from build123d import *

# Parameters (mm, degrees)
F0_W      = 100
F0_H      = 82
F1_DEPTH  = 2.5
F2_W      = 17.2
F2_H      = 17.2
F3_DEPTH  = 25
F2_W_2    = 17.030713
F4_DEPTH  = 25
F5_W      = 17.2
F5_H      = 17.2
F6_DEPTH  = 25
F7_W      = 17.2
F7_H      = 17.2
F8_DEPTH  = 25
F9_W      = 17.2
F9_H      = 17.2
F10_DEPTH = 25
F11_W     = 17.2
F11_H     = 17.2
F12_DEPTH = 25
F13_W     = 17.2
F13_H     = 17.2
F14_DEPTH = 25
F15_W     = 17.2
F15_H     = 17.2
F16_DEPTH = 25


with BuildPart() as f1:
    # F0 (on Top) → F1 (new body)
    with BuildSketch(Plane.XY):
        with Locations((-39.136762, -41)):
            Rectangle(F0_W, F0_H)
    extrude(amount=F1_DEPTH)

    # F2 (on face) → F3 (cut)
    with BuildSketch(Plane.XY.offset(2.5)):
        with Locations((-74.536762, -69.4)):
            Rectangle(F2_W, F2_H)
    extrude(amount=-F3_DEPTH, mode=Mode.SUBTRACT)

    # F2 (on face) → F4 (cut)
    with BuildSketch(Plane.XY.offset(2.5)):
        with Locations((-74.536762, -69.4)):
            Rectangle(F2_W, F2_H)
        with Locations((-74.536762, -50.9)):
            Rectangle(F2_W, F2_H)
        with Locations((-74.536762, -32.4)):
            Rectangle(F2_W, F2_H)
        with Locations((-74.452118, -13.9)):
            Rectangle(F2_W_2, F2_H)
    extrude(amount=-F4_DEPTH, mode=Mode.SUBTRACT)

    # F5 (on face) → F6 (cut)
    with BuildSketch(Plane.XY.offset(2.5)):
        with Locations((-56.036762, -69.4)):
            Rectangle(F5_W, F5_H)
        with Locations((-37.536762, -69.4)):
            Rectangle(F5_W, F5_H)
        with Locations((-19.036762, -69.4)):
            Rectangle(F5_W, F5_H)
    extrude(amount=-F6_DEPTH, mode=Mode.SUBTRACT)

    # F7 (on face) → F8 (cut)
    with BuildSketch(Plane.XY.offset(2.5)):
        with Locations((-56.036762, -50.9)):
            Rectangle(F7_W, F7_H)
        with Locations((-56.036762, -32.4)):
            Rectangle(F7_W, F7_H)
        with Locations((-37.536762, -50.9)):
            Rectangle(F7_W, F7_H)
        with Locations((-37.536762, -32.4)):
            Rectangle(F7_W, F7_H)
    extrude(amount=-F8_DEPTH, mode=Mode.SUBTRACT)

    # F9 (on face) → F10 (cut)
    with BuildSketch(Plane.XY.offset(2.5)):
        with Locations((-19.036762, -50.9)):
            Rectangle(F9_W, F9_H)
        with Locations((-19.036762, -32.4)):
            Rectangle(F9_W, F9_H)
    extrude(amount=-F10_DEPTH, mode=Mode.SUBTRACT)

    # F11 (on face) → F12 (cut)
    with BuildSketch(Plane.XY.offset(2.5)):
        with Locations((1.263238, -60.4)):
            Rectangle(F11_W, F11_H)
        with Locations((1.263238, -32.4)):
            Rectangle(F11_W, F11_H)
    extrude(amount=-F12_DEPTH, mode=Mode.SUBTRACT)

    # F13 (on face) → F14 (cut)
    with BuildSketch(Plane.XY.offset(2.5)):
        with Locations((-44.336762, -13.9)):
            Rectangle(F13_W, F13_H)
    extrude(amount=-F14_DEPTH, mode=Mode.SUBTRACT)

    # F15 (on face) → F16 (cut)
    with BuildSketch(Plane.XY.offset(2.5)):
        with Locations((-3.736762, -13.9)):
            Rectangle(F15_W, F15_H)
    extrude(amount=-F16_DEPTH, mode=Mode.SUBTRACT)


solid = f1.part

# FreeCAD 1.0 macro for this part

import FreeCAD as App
import Part
import Sketcher
from FreeCAD import Vector


def add_polygon(sketch, points):
    """Adds a closed chain of lines whose ends are joined by coincident constraints."""
    first, n = sketch.GeometryCount, len(points)
    for a, b in zip(points, points[1:] + points[:1]):
        sketch.addGeometry(Part.LineSegment(App.Vector(*a, 0), App.Vector(*b, 0)), False)
    for i in range(n):
        sketch.addConstraint(Sketcher.Constraint("Coincident", first + i, 2, first + (i + 1) % n, 1))

doc = App.newDocument("Part")
body = doc.addObject("PartDesign::Body", "Body")

# Sketch on XY plane
sketch1 = body.newObject("Sketcher::SketchObject", "Sketch")
sketch1.AttachmentSupport = (doc.getObject("XY_Plane"), [""])
sketch1.MapMode = "FlatFace"
add_polygon(sketch1, [(-89, 0), (-89, -82), (11, -82), (11, 0)])  # lines 0-3
sketch1.addConstraint([
    Sketcher.Constraint("Vertical", 0),
    Sketcher.Constraint("Horizontal", 1),
    Sketcher.Constraint("Vertical", 2),
    Sketcher.Constraint("Horizontal", 3),
    Sketcher.Constraint("PointOnObject", 2, 2, -1),
    Sketcher.Constraint("DistanceX", 1, 1, 1, 2, 100.0),
    Sketcher.Constraint("DistanceY", 0, 2, 0, 1, 82.0),
    Sketcher.Constraint("DistanceX", -1, 1, 1, 2, 10.863238),
])
pad1 = body.newObject("PartDesign::Pad", "Pad")
pad1.Profile = sketch1
pad1.Length = 2.5

# Sketch on XY plane
sketch2 = body.newObject("Sketcher::SketchObject", "Sketch001")
sketch2.AttachmentSupport = (doc.getObject("XY_Plane"), [""])
sketch2.MapMode = "FlatFace"
sketch2.AttachmentOffset = App.Placement(Vector(0, 0, 2.5), App.Rotation())
add_polygon(sketch2, [(-83, -61), (-83, -78), (-66, -78), (-66, -61)])  # lines 0-3
sketch2.addConstraint([
    Sketcher.Constraint("Vertical", 0),
    Sketcher.Constraint("Horizontal", 1),
    Sketcher.Constraint("Vertical", 2),
    Sketcher.Constraint("Horizontal", 3),
    Sketcher.Constraint("Equal", 3, 0),
    Sketcher.Constraint("DistanceX", 1, 1, 1, 2, 17.2),
    Sketcher.Constraint("DistanceY", 0, 2, -1, 1, 78.0),
    Sketcher.Constraint("DistanceX", 1, 2, -1, 1, 65.936762),
])
pocket1 = body.newObject("PartDesign::Pocket", "Pocket")
pocket1.Profile = sketch2
pocket1.Length = 25

# Sketch on XY plane
sketch3 = body.newObject("Sketcher::SketchObject", "Sketch002")
sketch3.AttachmentSupport = (doc.getObject("XY_Plane"), [""])
sketch3.MapMode = "FlatFace"
sketch3.AttachmentOffset = App.Placement(Vector(0, 0, 2.5), App.Rotation())
add_polygon(sketch3, [(-83, -61), (-83, -78), (-66, -78), (-66, -61)])  # lines 0-3
add_polygon(sketch3, [(-83, -42), (-83, -60), (-66, -60), (-66, -42)])  # lines 4-7
add_polygon(sketch3, [(-83, -24), (-83, -41), (-66, -41), (-66, -24)])  # lines 8-11
add_polygon(sketch3, [(-83, -5), (-83, -22), (-66, -22), (-66, -5)])  # lines 12-15
sketch3.addConstraint([
    Sketcher.Constraint("Vertical", 0),
    Sketcher.Constraint("Horizontal", 1),
    Sketcher.Constraint("Vertical", 2),
    Sketcher.Constraint("Horizontal", 3),
    Sketcher.Constraint("Vertical", 4),
    Sketcher.Constraint("Horizontal", 5),
    Sketcher.Constraint("Vertical", 6),
    Sketcher.Constraint("Horizontal", 7),
    Sketcher.Constraint("Vertical", 8),
    Sketcher.Constraint("Horizontal", 9),
    Sketcher.Constraint("Vertical", 10),
    Sketcher.Constraint("Horizontal", 11),
    Sketcher.Constraint("Vertical", 12),
    Sketcher.Constraint("Horizontal", 13),
    Sketcher.Constraint("Vertical", 14),
    Sketcher.Constraint("Horizontal", 15),
    Sketcher.Constraint("Vertical", 3, 2, 4, 2),
    Sketcher.Constraint("Vertical", 2, 2, 5, 2),
    Sketcher.Constraint("Vertical", 7, 2, 8, 2),
    Sketcher.Constraint("Vertical", 6, 2, 9, 2),
    Sketcher.Constraint("Vertical", 10, 2, 13, 2),
    Sketcher.Constraint("Equal", 11, 0),
    Sketcher.Constraint("Equal", 2, 4),
    Sketcher.Constraint("Equal", 6, 8),
    Sketcher.Constraint("Equal", 10, 12),
    Sketcher.Constraint("DistanceX", 1, 1, 1, 2, 17.2),
    Sketcher.Constraint("DistanceY", 0, 2, -1, 1, 78.0),
    Sketcher.Constraint("DistanceY", 8, 2, -1, 1, 41.0),
    Sketcher.Constraint("DistanceY", 4, 2, -1, 1, 59.5),
    Sketcher.Constraint("DistanceY", 12, 2, -1, 1, 22.5),
    Sketcher.Constraint("DistanceX", 13, 1, 13, 2, 17.030713),
    Sketcher.Constraint("DistanceX", 1, 2, -1, 1, 65.936762),
])
pocket2 = body.newObject("PartDesign::Pocket", "Pocket001")
pocket2.Profile = sketch3
pocket2.Length = 25

# Sketch on XY plane
sketch4 = body.newObject("Sketcher::SketchObject", "Sketch003")
sketch4.AttachmentSupport = (doc.getObject("XY_Plane"), [""])
sketch4.MapMode = "FlatFace"
sketch4.AttachmentOffset = App.Placement(Vector(0, 0, 2.5), App.Rotation())
add_polygon(sketch4, [(-65, -61), (-65, -78), (-47, -78), (-47, -61)])  # lines 0-3
add_polygon(sketch4, [(-46, -61), (-46, -78), (-29, -78), (-29, -61)])  # lines 4-7
add_polygon(sketch4, [(-28, -61), (-28, -78), (-10, -78), (-10, -61)])  # lines 8-11
sketch4.addConstraint([
    Sketcher.Constraint("Vertical", 0),
    Sketcher.Constraint("Horizontal", 1),
    Sketcher.Constraint("Vertical", 2),
    Sketcher.Constraint("Horizontal", 3),
    Sketcher.Constraint("Vertical", 4),
    Sketcher.Constraint("Horizontal", 5),
    Sketcher.Constraint("Vertical", 6),
    Sketcher.Constraint("Horizontal", 7),
    Sketcher.Constraint("Vertical", 8),
    Sketcher.Constraint("Horizontal", 9),
    Sketcher.Constraint("Vertical", 10),
    Sketcher.Constraint("Horizontal", 11),
    Sketcher.Constraint("Horizontal", 1, 2, 4, 2),
    Sketcher.Constraint("Horizontal", 3, 2, 6, 2),
    Sketcher.Constraint("Horizontal", 5, 2, 8, 2),
    Sketcher.Constraint("Horizontal", 7, 2, 10, 2),
    Sketcher.Constraint("Equal", 3, 5),
    Sketcher.Constraint("Equal", 7, 9),
    Sketcher.Constraint("Equal", 11, 0),
    Sketcher.Constraint("DistanceX", 1, 1, 1, 2, 17.2),
    Sketcher.Constraint("DistanceY", 0, 2, -1, 1, 78.0),
    Sketcher.Constraint("DistanceX", 1, 2, 9, 2, 37.0),
    Sketcher.Constraint("DistanceX", 1, 2, 4, 2, 1.3),
    Sketcher.Constraint("DistanceX", 4, 2, -1, 1, 46.136762),
])
pocket3 = body.newObject("PartDesign::Pocket", "Pocket002")
pocket3.Profile = sketch4
pocket3.Length = 25

# Sketch on XY plane
sketch5 = body.newObject("Sketcher::SketchObject", "Sketch004")
sketch5.AttachmentSupport = (doc.getObject("XY_Plane"), [""])
sketch5.MapMode = "FlatFace"
sketch5.AttachmentOffset = App.Placement(Vector(0, 0, 2.5), App.Rotation())
add_polygon(sketch5, [(-65, -42), (-65, -60), (-47, -60), (-47, -42)])  # lines 0-3
add_polygon(sketch5, [(-65, -24), (-65, -41), (-47, -41), (-47, -24)])  # lines 4-7
add_polygon(sketch5, [(-46, -42), (-46, -60), (-29, -60), (-29, -42)])  # lines 8-11
add_polygon(sketch5, [(-46, -24), (-46, -41), (-29, -41), (-29, -24)])  # lines 12-15
sketch5.addConstraint([
    Sketcher.Constraint("Vertical", 0),
    Sketcher.Constraint("Horizontal", 1),
    Sketcher.Constraint("Vertical", 2),
    Sketcher.Constraint("Horizontal", 3),
    Sketcher.Constraint("Vertical", 4),
    Sketcher.Constraint("Horizontal", 5),
    Sketcher.Constraint("Vertical", 6),
    Sketcher.Constraint("Horizontal", 7),
    Sketcher.Constraint("Vertical", 8),
    Sketcher.Constraint("Horizontal", 9),
    Sketcher.Constraint("Vertical", 10),
    Sketcher.Constraint("Horizontal", 11),
    Sketcher.Constraint("Vertical", 12),
    Sketcher.Constraint("Horizontal", 13),
    Sketcher.Constraint("Vertical", 14),
    Sketcher.Constraint("Horizontal", 15),
    Sketcher.Constraint("Horizontal", 1, 2, 8, 2),
    Sketcher.Constraint("Horizontal", 3, 2, 10, 2),
    Sketcher.Constraint("Horizontal", 5, 2, 12, 2),
    Sketcher.Constraint("Horizontal", 7, 2, 14, 2),
    Sketcher.Constraint("Vertical", 3, 2, 4, 2),
    Sketcher.Constraint("Vertical", 2, 2, 5, 2),
    Sketcher.Constraint("Vertical", 11, 2, 12, 2),
    Sketcher.Constraint("Vertical", 10, 2, 13, 2),
    Sketcher.Constraint("Equal", 7, 9),
    Sketcher.Constraint("Equal", 15, 0),
    Sketcher.Constraint("Equal", 2, 4),
    Sketcher.Constraint("DistanceX", 1, 1, 1, 2, 17.2),
    Sketcher.Constraint("DistanceY", 4, 2, -1, 1, 41.0),
    Sketcher.Constraint("DistanceY", 0, 2, -1, 1, 59.5),
    Sketcher.Constraint("DistanceX", 1, 2, 8, 2, 1.3),
    Sketcher.Constraint("DistanceX", 8, 2, -1, 1, 46.136762),
])
pocket4 = body.newObject("PartDesign::Pocket", "Pocket003")
pocket4.Profile = sketch5
pocket4.Length = 25

# Sketch on XY plane
sketch6 = body.newObject("Sketcher::SketchObject", "Sketch005")
sketch6.AttachmentSupport = (doc.getObject("XY_Plane"), [""])
sketch6.MapMode = "FlatFace"
sketch6.AttachmentOffset = App.Placement(Vector(0, 0, 2.5), App.Rotation())
add_polygon(sketch6, [(-28, -42), (-28, -60), (-10, -60), (-10, -42)])  # lines 0-3
add_polygon(sketch6, [(-28, -24), (-28, -41), (-10, -41), (-10, -24)])  # lines 4-7
sketch6.addConstraint([
    Sketcher.Constraint("Vertical", 0),
    Sketcher.Constraint("Horizontal", 1),
    Sketcher.Constraint("Vertical", 2),
    Sketcher.Constraint("Horizontal", 3),
    Sketcher.Constraint("Vertical", 4),
    Sketcher.Constraint("Horizontal", 5),
    Sketcher.Constraint("Vertical", 6),
    Sketcher.Constraint("Horizontal", 7),
    Sketcher.Constraint("Vertical", 3, 2, 4, 2),
    Sketcher.Constraint("Vertical", 2, 2, 5, 2),
    Sketcher.Constraint("Equal", 7, 0),
    Sketcher.Constraint("Equal", 2, 4),
    Sketcher.Constraint("DistanceX", 1, 1, 1, 2, 17.2),
    Sketcher.Constraint("DistanceY", 4, 2, -1, 1, 41.0),
    Sketcher.Constraint("DistanceY", 0, 2, -1, 1, 59.5),
    Sketcher.Constraint("DistanceX", 0, 2, -1, 1, 27.636762),
])
pocket5 = body.newObject("PartDesign::Pocket", "Pocket004")
pocket5.Profile = sketch6
pocket5.Length = 25

# Sketch on XY plane
sketch7 = body.newObject("Sketcher::SketchObject", "Sketch006")
sketch7.AttachmentSupport = (doc.getObject("XY_Plane"), [""])
sketch7.MapMode = "FlatFace"
sketch7.AttachmentOffset = App.Placement(Vector(0, 0, 2.5), App.Rotation())
add_polygon(sketch7, [(-7, -52), (-7, -69), (10, -69), (10, -52)])  # lines 0-3
add_polygon(sketch7, [(-7, -24), (-7, -41), (10, -41), (10, -24)])  # lines 4-7
sketch7.addConstraint([
    Sketcher.Constraint("Vertical", 0),
    Sketcher.Constraint("Horizontal", 1),
    Sketcher.Constraint("Vertical", 2),
    Sketcher.Constraint("Horizontal", 3),
    Sketcher.Constraint("Vertical", 4),
    Sketcher.Constraint("Horizontal", 5),
    Sketcher.Constraint("Vertical", 6),
    Sketcher.Constraint("Horizontal", 7),
    Sketcher.Constraint("Vertical", 3, 2, 4, 2),
    Sketcher.Constraint("Vertical", 2, 2, 5, 2),
    Sketcher.Constraint("Equal", 7, 0),
    Sketcher.Constraint("Equal", 2, 4),
    Sketcher.Constraint("DistanceX", 1, 1, 1, 2, 17.2),
    Sketcher.Constraint("DistanceY", 0, 2, -1, 1, 69.0),
    Sketcher.Constraint("DistanceY", 4, 2, -1, 1, 41.0),
    Sketcher.Constraint("DistanceX", -1, 1, 1, 2, 9.863238),
])
pocket6 = body.newObject("PartDesign::Pocket", "Pocket005")
pocket6.Profile = sketch7
pocket6.Length = 25

# Sketch on XY plane
sketch8 = body.newObject("Sketcher::SketchObject", "Sketch007")
sketch8.AttachmentSupport = (doc.getObject("XY_Plane"), [""])
sketch8.MapMode = "FlatFace"
sketch8.AttachmentOffset = App.Placement(Vector(0, 0, 2.5), App.Rotation())
add_polygon(sketch8, [(-53, -5), (-53, -22), (-36, -22), (-36, -5)])  # lines 0-3
sketch8.addConstraint([
    Sketcher.Constraint("Vertical", 0),
    Sketcher.Constraint("Horizontal", 1),
    Sketcher.Constraint("Vertical", 2),
    Sketcher.Constraint("Horizontal", 3),
    Sketcher.Constraint("Equal", 3, 0),
    Sketcher.Constraint("DistanceX", 1, 1, 1, 2, 17.2),
    Sketcher.Constraint("DistanceY", 0, 2, -1, 1, 22.5),
    Sketcher.Constraint("DistanceX", 0, 2, -1, 1, 52.936762),
])
pocket7 = body.newObject("PartDesign::Pocket", "Pocket006")
pocket7.Profile = sketch8
pocket7.Length = 25

# Sketch on XY plane
sketch9 = body.newObject("Sketcher::SketchObject", "Sketch008")
sketch9.AttachmentSupport = (doc.getObject("XY_Plane"), [""])
sketch9.MapMode = "FlatFace"
sketch9.AttachmentOffset = App.Placement(Vector(0, 0, 2.5), App.Rotation())
add_polygon(sketch9, [(-12, -5), (-12, -22), (5, -22), (5, -5)])  # lines 0-3
sketch9.addConstraint([
    Sketcher.Constraint("Vertical", 0),
    Sketcher.Constraint("Horizontal", 1),
    Sketcher.Constraint("Vertical", 2),
    Sketcher.Constraint("Horizontal", 3),
    Sketcher.Constraint("Equal", 3, 0),
    Sketcher.Constraint("DistanceX", 1, 1, 1, 2, 17.2),
    Sketcher.Constraint("DistanceY", 0, 2, -1, 1, 22.5),
    Sketcher.Constraint("DistanceX", 0, 2, -1, 1, 12.336762),
])
pocket8 = body.newObject("PartDesign::Pocket", "Pocket007")
pocket8.Profile = sketch9
pocket8.Length = 25

doc.recompute()
